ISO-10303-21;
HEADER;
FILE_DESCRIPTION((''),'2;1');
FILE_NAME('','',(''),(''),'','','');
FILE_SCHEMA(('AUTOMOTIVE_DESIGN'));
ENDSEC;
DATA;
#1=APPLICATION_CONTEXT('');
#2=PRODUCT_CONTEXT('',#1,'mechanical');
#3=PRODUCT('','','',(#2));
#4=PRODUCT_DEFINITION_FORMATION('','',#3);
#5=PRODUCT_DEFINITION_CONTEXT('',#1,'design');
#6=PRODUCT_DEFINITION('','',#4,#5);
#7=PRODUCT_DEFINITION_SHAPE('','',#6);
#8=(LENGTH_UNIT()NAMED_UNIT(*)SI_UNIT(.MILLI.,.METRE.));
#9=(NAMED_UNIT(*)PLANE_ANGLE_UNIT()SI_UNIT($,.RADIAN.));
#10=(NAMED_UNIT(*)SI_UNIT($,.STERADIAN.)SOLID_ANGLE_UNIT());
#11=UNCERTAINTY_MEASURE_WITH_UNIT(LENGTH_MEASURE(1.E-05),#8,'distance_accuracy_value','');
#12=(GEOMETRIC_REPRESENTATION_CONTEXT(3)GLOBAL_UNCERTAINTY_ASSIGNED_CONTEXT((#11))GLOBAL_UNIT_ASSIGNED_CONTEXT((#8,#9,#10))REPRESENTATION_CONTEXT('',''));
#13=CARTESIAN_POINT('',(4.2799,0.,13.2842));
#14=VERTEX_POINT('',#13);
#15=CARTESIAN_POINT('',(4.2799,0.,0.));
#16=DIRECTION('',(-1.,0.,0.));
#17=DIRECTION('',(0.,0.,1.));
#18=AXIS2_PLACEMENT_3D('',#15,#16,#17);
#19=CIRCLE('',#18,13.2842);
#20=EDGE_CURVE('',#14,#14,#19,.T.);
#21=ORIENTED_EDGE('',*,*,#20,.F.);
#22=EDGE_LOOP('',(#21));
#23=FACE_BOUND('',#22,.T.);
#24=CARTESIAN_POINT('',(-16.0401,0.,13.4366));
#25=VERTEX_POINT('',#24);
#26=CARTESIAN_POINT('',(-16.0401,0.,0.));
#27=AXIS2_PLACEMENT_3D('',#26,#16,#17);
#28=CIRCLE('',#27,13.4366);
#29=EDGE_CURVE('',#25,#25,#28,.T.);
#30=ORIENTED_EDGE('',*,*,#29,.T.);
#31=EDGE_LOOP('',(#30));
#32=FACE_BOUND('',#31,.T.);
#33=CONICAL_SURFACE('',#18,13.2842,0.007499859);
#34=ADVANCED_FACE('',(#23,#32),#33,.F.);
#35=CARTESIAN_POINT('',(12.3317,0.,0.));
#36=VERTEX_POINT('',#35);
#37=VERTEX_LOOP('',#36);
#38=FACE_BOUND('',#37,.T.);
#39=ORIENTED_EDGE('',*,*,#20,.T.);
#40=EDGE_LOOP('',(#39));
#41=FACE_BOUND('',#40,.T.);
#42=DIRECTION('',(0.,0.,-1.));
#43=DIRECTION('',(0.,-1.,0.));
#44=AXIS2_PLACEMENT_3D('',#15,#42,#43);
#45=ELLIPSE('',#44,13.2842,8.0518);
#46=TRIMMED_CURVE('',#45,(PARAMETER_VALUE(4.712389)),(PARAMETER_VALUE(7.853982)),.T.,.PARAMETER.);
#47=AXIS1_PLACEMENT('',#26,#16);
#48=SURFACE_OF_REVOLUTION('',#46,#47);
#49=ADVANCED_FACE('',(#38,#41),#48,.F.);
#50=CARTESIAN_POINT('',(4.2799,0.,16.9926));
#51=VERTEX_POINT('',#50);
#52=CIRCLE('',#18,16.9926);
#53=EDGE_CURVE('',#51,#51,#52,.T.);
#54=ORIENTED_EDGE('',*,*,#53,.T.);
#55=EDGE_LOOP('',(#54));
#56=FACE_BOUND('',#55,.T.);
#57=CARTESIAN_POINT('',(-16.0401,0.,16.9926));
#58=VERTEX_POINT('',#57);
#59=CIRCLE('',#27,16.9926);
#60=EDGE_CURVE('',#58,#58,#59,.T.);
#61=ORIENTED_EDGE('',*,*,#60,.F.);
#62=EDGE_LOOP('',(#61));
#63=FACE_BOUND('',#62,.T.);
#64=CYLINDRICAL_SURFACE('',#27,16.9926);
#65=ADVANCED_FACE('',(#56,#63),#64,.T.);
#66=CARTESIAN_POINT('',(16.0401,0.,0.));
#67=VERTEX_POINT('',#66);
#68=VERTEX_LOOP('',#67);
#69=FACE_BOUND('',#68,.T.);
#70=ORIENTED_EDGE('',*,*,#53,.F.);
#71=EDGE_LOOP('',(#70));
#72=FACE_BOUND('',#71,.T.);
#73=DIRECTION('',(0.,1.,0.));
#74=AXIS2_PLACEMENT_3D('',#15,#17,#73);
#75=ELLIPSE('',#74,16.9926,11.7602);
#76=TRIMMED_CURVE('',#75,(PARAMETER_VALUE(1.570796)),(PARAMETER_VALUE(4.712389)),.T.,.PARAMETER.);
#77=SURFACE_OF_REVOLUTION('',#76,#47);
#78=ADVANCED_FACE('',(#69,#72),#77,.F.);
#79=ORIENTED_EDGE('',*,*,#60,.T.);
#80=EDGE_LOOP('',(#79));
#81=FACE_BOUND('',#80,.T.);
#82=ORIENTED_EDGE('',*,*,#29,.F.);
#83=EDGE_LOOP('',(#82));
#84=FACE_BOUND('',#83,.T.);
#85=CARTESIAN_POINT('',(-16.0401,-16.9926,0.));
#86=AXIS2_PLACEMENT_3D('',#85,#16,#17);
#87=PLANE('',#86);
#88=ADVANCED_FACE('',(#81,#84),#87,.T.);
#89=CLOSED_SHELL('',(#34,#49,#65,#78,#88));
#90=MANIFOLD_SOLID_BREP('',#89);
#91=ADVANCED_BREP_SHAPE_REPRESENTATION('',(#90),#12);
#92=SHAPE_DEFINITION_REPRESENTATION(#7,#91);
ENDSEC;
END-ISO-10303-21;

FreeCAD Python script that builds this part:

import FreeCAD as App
import Part
import Sketcher

V = App.Vector
Q = App.Units.Quantity

doc = App.newDocument("Part")
body = doc.addObject("PartDesign::Body", "Body")

sketch1 = body.newObject("Sketcher::SketchObject", "Sketch")
sketch1.AttachmentSupport = (doc.getObject("XY_Plane"), [""])
sketch1.MapMode = "FlatFace"
sketch1.addGeometry([
    Part.LineSegment(V(16.0401, 0, 0), V(12.3317, 0, 0)),
    Part.BSplineCurve([V(4.2799, -13.2842, 0), V(12.3317, -13.2842, 0), V(12.3317, 0, 0)], [3, 3], [0, 1.570796327], False, 2, [1, 0.707106781, 1], False),
    Part.LineSegment(V(4.2799, -13.2842, 0), V(-16.0401, -13.4366, 0)),
    Part.LineSegment(V(-16.0401, -13.4366, 0), V(-16.0401, -16.9926, 0)),
    Part.LineSegment(V(-16.0401, -16.9926, 0), V(4.2799, -16.9926, 0)),
    Part.BSplineCurve([V(4.2799, -16.9926, 0), V(16.0401, -16.9926, 0), V(16.0401, 0, 0)], [3, 3], [3.141592654, 4.71238898], False, 2, [1, 0.707106781, 1], False),
], False)
sketch1.addConstraint([
    Sketcher.Constraint("Block", 1),
    Sketcher.Constraint("Block", 5),
    Sketcher.Constraint("Coincident", 0, 2, 1, 2),
    Sketcher.Constraint("Coincident", 1, 1, 2, 1),
    Sketcher.Constraint("Coincident", 2, 2, 3, 1),
    Sketcher.Constraint("Coincident", 3, 2, 4, 1),
    Sketcher.Constraint("Coincident", 4, 2, 5, 1),
    Sketcher.Constraint("Coincident", 5, 2, 0, 1),
    Sketcher.Constraint("Vertical", 3),
    Sketcher.Constraint("Horizontal", 4),
    Sketcher.Constraint("DistanceX", 4, 1, 4, 2, Q("0.8 in")),
    Sketcher.Constraint("DistanceY", 3, 2, 3, 1, Q("0.14 in")),
])
revolution = body.newObject("PartDesign::Revolution", "Revolution")
revolution.Profile = sketch1
revolution.ReferenceAxis = (sketch1, ["H_Axis"])
revolution.Angle = 360

doc.recompute()
